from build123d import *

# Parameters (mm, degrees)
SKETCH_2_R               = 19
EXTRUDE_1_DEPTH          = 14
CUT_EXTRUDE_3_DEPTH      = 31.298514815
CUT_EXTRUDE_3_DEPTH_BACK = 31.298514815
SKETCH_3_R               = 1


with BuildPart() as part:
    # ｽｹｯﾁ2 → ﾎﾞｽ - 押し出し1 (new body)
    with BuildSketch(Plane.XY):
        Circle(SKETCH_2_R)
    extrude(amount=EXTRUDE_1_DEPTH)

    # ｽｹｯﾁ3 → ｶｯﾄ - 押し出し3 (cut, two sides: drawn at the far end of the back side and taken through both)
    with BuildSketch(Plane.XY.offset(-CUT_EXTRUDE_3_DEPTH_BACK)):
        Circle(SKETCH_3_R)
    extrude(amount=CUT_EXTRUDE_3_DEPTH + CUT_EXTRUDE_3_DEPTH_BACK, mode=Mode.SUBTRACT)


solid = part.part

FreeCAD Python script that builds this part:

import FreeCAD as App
import Part
import Sketcher

V = App.Vector

doc = App.newDocument("Part")
params = doc.addObject("Spreadsheet::Sheet", "Params")
for row, (alias, value) in enumerate([
    ("sketch1_diameter", "38 mm"),
    ("pad1_length", "14 mm"),
    ("sketch2_diameter", "2 mm"),
], start=1):
    params.set(f"A{row}", alias)
    params.set(f"B{row}", "=" + value)
    params.setAlias(f"B{row}", alias)

body = doc.addObject("PartDesign::Body", "Body")

# Sketch on XY plane
sketch1 = doc.addObject("Sketcher::SketchObject", "Sketch")
body.addObject(sketch1)
sketch1.AttachmentSupport = (doc.XY_Plane, [""])
sketch1.MapMode = "FlatFace"
sketch1.addGeometry(Part.Circle(V(0, 0, 0), V(0, 0, 1), 19), False)
sketch1.addConstraint([
    Sketcher.Constraint("Coincident", 0, 3, -1, 1),
    Sketcher.Constraint("Diameter", 0, 38.0),
])
sketch1.setExpression("Constraints[1]", "Params.sketch1_diameter")
pad1 = doc.addObject("PartDesign::Pad", "Pad")
body.addObject(pad1)
pad1.Profile = sketch1
pad1.setExpression("Length", "Params.pad1_length")

# Sketch on XY plane
sketch2 = doc.addObject("Sketcher::SketchObject", "Sketch001")
body.addObject(sketch2)
sketch2.AttachmentSupport = (doc.XY_Plane, [""])
sketch2.MapMode = "FlatFace"
sketch2.addGeometry(Part.Circle(V(0, 0, 0), V(0, 0, 1), 1), False)
sketch2.addConstraint([
    Sketcher.Constraint("Coincident", 0, 3, -1, 1),
    Sketcher.Constraint("Diameter", 0, 2.0),
])
sketch2.setExpression("Constraints[1]", "Params.sketch2_diameter")
pocket1 = doc.addObject("PartDesign::Pocket", "Pocket")
body.addObject(pocket1)
pocket1.Profile = sketch2
pocket1.Type = "ThroughAll"
pocket1.Midplane = True

doc.recompute()
